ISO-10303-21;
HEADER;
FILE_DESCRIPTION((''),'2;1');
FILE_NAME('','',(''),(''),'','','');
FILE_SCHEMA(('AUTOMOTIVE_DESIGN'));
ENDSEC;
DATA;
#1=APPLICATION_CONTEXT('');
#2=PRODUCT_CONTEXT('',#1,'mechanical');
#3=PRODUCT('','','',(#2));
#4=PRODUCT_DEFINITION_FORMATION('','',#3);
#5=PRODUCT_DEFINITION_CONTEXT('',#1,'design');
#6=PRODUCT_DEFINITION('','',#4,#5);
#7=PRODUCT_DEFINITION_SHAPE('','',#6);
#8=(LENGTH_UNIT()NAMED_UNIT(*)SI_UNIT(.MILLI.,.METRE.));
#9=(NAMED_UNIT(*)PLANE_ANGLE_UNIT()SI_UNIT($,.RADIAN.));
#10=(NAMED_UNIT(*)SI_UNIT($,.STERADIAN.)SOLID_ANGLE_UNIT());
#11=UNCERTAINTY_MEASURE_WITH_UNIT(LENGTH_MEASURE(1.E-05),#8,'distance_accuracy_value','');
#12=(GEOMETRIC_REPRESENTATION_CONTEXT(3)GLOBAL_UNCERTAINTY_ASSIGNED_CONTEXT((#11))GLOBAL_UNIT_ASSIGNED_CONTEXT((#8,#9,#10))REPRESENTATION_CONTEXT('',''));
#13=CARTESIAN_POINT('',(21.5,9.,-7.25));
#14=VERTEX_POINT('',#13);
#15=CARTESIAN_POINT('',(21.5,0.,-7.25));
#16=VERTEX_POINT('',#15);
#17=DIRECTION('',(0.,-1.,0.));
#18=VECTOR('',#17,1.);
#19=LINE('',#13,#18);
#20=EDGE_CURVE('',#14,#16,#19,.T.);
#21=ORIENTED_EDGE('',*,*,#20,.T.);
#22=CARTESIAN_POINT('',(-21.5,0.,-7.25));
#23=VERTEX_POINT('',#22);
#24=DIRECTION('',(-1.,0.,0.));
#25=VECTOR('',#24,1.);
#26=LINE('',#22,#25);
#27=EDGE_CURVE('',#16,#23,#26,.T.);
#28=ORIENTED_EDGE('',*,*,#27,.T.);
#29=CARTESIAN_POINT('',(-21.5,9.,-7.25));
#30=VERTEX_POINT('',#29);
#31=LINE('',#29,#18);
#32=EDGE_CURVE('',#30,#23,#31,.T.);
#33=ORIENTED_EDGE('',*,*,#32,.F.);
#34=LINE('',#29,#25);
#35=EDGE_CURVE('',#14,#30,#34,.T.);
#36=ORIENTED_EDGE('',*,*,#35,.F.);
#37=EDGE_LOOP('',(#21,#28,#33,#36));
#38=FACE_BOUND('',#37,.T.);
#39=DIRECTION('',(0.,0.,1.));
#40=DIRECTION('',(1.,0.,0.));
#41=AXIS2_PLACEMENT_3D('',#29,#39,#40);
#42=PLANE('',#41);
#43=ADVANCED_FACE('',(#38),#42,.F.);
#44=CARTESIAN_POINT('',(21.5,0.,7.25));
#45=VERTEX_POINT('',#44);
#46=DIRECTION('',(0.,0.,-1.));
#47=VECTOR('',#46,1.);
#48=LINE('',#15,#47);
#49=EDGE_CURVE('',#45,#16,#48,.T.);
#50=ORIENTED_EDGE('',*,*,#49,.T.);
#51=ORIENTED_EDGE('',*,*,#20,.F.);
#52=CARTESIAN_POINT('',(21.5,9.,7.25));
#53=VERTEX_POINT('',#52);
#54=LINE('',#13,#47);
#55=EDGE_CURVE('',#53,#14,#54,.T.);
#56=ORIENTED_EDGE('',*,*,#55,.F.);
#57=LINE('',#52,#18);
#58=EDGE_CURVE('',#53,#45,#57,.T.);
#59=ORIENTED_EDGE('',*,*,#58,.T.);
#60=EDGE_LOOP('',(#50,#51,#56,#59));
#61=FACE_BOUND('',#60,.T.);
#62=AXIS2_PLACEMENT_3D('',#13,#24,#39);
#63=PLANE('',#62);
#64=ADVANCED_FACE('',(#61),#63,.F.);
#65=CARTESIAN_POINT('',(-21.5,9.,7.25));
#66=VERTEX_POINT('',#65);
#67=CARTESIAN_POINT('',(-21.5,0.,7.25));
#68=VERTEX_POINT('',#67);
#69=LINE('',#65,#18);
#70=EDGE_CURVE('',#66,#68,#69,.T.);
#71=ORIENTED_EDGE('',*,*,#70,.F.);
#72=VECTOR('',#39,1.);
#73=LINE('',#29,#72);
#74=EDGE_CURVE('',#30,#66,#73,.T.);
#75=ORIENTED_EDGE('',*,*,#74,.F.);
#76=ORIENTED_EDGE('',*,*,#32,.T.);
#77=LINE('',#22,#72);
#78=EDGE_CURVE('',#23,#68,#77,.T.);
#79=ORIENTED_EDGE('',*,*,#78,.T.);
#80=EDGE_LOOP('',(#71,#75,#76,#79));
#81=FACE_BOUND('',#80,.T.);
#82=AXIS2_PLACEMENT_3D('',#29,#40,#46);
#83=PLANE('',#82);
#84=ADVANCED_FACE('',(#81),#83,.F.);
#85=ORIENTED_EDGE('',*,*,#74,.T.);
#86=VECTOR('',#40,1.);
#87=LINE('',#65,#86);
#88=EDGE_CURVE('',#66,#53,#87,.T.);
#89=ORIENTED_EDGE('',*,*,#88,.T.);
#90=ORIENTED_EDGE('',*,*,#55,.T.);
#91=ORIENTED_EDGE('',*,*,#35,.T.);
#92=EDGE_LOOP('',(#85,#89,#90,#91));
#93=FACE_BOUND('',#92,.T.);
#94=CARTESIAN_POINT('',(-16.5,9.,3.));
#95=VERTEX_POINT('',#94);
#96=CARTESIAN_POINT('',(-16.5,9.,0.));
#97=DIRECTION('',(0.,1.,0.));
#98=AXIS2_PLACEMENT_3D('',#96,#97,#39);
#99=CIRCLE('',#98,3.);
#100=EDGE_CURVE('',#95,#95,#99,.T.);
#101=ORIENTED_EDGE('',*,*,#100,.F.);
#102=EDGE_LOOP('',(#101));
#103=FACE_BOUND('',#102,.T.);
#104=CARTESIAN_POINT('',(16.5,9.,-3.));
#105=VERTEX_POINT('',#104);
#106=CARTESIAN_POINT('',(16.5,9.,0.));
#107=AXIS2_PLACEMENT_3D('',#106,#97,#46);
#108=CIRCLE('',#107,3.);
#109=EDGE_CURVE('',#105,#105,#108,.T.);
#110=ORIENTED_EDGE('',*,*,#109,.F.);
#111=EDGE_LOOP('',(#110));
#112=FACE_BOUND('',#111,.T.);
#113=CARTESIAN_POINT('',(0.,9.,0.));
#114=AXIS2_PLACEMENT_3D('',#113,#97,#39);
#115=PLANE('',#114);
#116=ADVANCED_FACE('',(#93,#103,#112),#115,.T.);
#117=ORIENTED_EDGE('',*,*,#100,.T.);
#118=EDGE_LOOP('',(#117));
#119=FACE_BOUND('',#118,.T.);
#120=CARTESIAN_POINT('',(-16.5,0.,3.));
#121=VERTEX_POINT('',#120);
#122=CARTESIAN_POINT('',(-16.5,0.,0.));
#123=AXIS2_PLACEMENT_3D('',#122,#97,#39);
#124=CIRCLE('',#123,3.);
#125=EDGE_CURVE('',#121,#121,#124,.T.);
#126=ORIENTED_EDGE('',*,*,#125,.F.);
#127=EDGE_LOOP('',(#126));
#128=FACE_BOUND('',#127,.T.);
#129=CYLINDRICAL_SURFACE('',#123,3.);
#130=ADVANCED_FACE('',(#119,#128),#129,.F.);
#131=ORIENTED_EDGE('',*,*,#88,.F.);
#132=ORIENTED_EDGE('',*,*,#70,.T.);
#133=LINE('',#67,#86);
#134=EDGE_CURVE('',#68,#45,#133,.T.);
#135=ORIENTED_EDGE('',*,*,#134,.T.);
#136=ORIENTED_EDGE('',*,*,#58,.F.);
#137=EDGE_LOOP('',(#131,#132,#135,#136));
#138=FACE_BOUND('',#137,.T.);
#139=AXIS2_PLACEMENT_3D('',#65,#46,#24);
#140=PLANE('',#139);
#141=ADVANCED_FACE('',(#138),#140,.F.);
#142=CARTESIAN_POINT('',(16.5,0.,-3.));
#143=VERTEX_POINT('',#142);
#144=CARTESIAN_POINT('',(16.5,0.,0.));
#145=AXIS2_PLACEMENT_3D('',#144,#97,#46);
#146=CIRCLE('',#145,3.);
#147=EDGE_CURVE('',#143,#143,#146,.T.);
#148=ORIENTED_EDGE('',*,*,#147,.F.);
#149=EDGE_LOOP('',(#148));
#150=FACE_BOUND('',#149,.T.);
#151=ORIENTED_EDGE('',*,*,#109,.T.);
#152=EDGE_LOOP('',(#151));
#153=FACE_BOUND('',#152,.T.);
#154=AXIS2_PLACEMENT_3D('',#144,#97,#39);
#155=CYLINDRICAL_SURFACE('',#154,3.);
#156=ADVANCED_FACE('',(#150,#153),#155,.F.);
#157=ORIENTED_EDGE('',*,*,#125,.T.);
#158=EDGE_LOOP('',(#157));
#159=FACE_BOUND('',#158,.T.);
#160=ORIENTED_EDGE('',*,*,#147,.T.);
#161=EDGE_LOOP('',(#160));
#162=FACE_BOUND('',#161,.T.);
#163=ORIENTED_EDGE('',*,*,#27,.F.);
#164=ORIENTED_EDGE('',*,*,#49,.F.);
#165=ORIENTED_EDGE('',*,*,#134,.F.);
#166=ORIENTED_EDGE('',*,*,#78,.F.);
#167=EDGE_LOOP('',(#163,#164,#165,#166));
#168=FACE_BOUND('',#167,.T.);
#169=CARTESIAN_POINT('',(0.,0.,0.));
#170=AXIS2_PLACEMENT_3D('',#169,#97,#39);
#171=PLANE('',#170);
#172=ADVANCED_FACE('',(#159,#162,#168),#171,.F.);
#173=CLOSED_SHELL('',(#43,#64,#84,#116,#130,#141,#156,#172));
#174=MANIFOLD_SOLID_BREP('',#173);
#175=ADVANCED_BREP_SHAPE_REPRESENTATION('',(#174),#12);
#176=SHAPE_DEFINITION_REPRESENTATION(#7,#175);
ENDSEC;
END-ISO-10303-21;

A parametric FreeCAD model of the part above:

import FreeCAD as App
import Part
import Sketcher

V = App.Vector

doc = App.newDocument("Part")
params = doc.addObject("Spreadsheet::Sheet", "Params")
for row, (alias, value) in enumerate([
    ("sketch1_width", "43 mm"),
    ("sketch1_height", "14.5 mm"),
    ("pad1_length", "9 mm"),
    ("sketch2_diameter", "6 mm"),
    ("pocket1_length", "9 mm"),
], start=1):
    params.set(f"A{row}", alias)
    params.set(f"B{row}", "=" + value)
    params.setAlias(f"B{row}", alias)

body = doc.addObject("PartDesign::Body", "Body")

# Sketch on XZ plane
sketch1 = body.newObject("Sketcher::SketchObject", "Sketch")
sketch1.AttachmentSupport = (doc.getObject("XZ_Plane"), [""])
sketch1.MapMode = "FlatFace"
sketch1.addGeometry([
    Part.LineSegment(V(-22, -7, 0), V(-22, 7, 0)),
    Part.LineSegment(V(-22, 7, 0), V(22, 7, 0)),
    Part.LineSegment(V(22, 7, 0), V(22, -7, 0)),
    Part.LineSegment(V(22, -7, 0), V(-22, -7, 0)),
], False)
sketch1.addConstraint([
    Sketcher.Constraint("Coincident", 0, 2, 1, 1),
    Sketcher.Constraint("Coincident", 1, 2, 2, 1),
    Sketcher.Constraint("Coincident", 2, 2, 3, 1),
    Sketcher.Constraint("Coincident", 3, 2, 0, 1),
    Sketcher.Constraint("Vertical", 0),
    Sketcher.Constraint("Horizontal", 1),
    Sketcher.Constraint("Vertical", 2),
    Sketcher.Constraint("Horizontal", 3),
    Sketcher.Constraint("Symmetric", 0, 2, 2, 2, -1, 1),
    Sketcher.Constraint("DistanceX", 1, 1, 1, 2, 43.0),
    Sketcher.Constraint("DistanceY", 0, 1, 0, 2, 14.5),
])
sketch1.setExpression("Constraints[9]", "Params.sketch1_width")
sketch1.setExpression("Constraints[10]", "Params.sketch1_height")
pad1 = body.newObject("PartDesign::Pad", "Pad")
pad1.Profile = sketch1
pad1.setExpression("Length", "Params.pad1_length")
pad1.Reversed = True

# Sketch on XZ plane
sketch2 = body.newObject("Sketcher::SketchObject", "Sketch001")
sketch2.AttachmentSupport = (doc.getObject("XZ_Plane"), [""])
sketch2.MapMode = "FlatFace"
sketch2.AttachmentOffset = App.Placement(V(0, 0, -9), App.Rotation())
sketch2.addGeometry([
    Part.Circle(V(-16.5, 0, 0), V(0, 0, 1), 3),
    Part.Circle(V(16.5, 0, 0), V(0, 0, 1), 3),
], False)
sketch2.addConstraint([
    Sketcher.Constraint("Equal", 0, 1),
    Sketcher.Constraint("Symmetric", 0, 3, 1, 3, -1, 1),
    Sketcher.Constraint("PointOnObject", 0, 3, -1),
    Sketcher.Constraint("Diameter", 0, 6.0),
    Sketcher.Constraint("DistanceX", 0, 3, 1, 3, 33.0),
])
sketch2.setExpression("Constraints[3]", "Params.sketch2_diameter")
pocket1 = body.newObject("PartDesign::Pocket", "Pocket")
pocket1.Profile = sketch2
pocket1.setExpression("Length", "Params.pocket1_length")
pocket1.Reversed = True

doc.recompute()
